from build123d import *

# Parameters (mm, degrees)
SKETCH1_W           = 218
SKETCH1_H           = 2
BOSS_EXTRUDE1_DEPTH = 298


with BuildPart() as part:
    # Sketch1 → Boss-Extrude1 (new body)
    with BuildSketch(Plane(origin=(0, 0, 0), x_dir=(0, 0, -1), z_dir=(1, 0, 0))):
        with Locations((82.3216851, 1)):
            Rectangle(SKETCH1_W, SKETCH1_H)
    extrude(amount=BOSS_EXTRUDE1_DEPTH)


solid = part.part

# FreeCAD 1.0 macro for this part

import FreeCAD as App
import Part
import Sketcher

V = App.Vector

doc = App.newDocument("Part")
body = doc.addObject("PartDesign::Body", "Body")

sketch1 = body.newObject("Sketcher::SketchObject", "Sketch")
sketch1.AttachmentSupport = (doc.getObject("YZ_Plane"), [""])
sketch1.MapMode = "FlatFace"
sketch1.addGeometry(Part.LineSegment(V(2, 26.678315, 0), V(0, 26.678315, 0)), False)
sketch1.addGeometry(Part.LineSegment(V(0, 26.678315, 0), V(0, -191.321685, 0)), False)
sketch1.addGeometry(Part.LineSegment(V(0, -191.321685, 0), V(2, -191.321685, 0)), False)
sketch1.addGeometry(Part.LineSegment(V(2, -191.321685, 0), V(2, 26.678315, 0)), False)
sketch1.addConstraint(Sketcher.Constraint("Coincident", 0, 2, 1, 1))
sketch1.addConstraint(Sketcher.Constraint("Coincident", 1, 2, 2, 1))
sketch1.addConstraint(Sketcher.Constraint("Coincident", 2, 2, 3, 1))
sketch1.addConstraint(Sketcher.Constraint("Coincident", 3, 2, 0, 1))
sketch1.addConstraint(Sketcher.Constraint("Horizontal", 0))
sketch1.addConstraint(Sketcher.Constraint("Vertical", 1))
sketch1.addConstraint(Sketcher.Constraint("Horizontal", 2))
sketch1.addConstraint(Sketcher.Constraint("Vertical", 3))
sketch1.addConstraint(Sketcher.Constraint("PointOnObject", 0, 2, -2))
sketch1.addConstraint(Sketcher.Constraint("DistanceX", 0, 2, 0, 1, 2.0))
sketch1.addConstraint(Sketcher.Constraint("DistanceY", 1, 2, 1, 1, 218.0))
sketch1.addConstraint(Sketcher.Constraint("DistanceY", -1, 1, 0, 2, 26.678315))
pad1 = body.newObject("PartDesign::Pad", "Pad")
pad1.Profile = sketch1
pad1.Length = 298

doc.recompute()
